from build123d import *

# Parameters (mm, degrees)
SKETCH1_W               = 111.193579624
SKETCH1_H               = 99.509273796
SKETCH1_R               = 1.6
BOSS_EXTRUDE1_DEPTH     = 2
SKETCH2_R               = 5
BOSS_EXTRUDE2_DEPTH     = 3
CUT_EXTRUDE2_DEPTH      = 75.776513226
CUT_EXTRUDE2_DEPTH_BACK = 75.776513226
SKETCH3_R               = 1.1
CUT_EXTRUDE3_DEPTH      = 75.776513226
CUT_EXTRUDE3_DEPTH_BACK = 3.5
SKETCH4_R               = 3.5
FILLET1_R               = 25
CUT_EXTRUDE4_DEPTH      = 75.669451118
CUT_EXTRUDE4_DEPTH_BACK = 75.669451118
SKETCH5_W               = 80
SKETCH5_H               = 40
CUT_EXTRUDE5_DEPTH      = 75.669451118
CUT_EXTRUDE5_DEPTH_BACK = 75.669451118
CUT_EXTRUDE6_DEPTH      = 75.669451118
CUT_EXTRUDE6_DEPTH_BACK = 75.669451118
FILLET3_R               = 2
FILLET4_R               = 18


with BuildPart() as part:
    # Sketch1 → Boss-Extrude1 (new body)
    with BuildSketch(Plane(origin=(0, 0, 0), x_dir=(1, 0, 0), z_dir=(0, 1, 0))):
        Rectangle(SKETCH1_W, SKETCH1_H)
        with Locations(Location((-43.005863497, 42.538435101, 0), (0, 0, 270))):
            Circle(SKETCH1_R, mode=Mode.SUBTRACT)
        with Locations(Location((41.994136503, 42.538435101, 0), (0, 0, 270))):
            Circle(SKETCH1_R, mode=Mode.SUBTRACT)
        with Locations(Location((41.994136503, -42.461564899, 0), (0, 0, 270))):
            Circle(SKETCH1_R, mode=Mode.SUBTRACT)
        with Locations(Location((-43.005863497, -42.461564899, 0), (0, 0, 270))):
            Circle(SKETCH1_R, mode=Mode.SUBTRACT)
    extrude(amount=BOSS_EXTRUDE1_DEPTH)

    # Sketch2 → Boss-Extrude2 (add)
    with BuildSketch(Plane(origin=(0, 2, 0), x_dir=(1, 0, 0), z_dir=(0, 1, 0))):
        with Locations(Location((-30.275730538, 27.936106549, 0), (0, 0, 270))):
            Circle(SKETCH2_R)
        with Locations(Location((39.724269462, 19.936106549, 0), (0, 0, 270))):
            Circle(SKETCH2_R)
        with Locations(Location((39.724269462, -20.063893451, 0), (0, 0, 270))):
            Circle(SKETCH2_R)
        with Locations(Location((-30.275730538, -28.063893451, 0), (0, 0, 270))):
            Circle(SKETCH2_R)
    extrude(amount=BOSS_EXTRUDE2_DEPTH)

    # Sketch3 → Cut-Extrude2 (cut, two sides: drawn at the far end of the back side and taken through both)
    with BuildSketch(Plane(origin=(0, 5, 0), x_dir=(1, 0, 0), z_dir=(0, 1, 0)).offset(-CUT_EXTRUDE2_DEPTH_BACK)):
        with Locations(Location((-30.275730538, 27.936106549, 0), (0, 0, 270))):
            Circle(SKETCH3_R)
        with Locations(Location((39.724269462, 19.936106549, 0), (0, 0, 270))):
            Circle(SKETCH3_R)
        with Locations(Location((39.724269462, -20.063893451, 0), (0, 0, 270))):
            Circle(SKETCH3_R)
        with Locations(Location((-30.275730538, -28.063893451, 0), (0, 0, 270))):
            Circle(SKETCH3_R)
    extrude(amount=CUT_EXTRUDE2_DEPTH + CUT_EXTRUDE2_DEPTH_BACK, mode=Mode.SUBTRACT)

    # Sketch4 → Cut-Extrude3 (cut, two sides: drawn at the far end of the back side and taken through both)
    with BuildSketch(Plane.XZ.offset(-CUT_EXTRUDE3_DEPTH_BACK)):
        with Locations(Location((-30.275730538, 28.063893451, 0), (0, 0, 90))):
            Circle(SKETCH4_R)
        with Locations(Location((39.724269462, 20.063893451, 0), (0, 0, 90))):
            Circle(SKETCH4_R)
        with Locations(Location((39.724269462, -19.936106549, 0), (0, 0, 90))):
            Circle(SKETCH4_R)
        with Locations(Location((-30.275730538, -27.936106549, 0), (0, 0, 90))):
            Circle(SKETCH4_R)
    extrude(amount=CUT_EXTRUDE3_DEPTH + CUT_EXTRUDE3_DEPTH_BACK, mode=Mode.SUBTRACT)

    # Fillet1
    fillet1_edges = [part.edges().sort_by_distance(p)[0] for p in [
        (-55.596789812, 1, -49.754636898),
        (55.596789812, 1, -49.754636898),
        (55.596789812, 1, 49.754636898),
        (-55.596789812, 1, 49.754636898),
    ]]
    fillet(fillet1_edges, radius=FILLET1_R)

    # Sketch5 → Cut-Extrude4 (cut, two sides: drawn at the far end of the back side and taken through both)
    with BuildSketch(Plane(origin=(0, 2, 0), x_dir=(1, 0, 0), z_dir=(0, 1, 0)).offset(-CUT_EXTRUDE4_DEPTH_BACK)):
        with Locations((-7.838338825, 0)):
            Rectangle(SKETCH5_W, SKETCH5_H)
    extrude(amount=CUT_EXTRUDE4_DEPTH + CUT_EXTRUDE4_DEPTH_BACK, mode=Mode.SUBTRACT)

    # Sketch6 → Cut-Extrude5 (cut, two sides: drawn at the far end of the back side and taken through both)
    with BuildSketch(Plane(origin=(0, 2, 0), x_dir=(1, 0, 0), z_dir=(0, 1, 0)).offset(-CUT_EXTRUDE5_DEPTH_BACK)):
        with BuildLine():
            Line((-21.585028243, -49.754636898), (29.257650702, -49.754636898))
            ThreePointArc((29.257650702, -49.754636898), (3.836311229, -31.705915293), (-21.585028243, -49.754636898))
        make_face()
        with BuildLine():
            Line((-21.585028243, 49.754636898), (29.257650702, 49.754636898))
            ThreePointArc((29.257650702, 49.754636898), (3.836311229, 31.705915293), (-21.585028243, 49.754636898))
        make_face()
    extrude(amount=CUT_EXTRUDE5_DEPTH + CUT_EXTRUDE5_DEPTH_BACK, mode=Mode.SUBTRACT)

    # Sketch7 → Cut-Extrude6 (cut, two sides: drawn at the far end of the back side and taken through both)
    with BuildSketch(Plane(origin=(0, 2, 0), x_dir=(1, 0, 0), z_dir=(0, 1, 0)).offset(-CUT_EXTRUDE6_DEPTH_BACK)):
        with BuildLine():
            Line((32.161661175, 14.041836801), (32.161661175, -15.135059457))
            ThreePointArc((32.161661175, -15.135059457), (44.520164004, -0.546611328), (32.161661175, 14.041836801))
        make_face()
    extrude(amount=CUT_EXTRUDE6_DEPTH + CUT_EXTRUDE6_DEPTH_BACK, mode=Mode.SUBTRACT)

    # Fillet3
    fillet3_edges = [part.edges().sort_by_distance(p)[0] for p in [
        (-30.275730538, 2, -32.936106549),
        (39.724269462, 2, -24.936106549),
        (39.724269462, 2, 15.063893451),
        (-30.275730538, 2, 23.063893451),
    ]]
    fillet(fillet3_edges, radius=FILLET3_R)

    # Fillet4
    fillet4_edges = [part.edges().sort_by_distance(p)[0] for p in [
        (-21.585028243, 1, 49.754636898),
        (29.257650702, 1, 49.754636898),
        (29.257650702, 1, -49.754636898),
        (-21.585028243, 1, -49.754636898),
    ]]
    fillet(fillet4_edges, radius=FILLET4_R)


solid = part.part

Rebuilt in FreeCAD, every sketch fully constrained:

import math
import FreeCAD as App
import Part
import Sketcher
from FreeCAD import Vector
Q = App.Units.Quantity


def edges_at(feature, points):
    """Names of the edges that pass closest to the given points."""
    edges = feature.Shape.Edges
    near = lambda p: min(range(len(edges)), key=lambda i: edges[i].distToShape(Part.Vertex(*p))[0])
    return sorted({f"Edge{near(p) + 1}" for p in points})

doc = App.newDocument("Part")
body = doc.addObject("PartDesign::Body", "Body")

# Sketch on XZ plane
sketch1 = body.newObject("Sketcher::SketchObject", "Sketch")
sketch1.AttachmentSupport = (doc.getObject("XZ_Plane"), [""])
sketch1.MapMode = "FlatFace"
sketch1.addGeometry([
    Part.LineSegment(Vector(-55.59679, -49.754637, 0), Vector(-55.59679, 49.754637, 0)),  # 0
    Part.LineSegment(Vector(-55.59679, 49.754637, 0), Vector(55.59679, 49.754637, 0)),  # 1
    Part.LineSegment(Vector(55.59679, 49.754637, 0), Vector(55.59679, -49.754637, 0)),  # 2
    Part.LineSegment(Vector(55.59679, -49.754637, 0), Vector(-55.59679, -49.754637, 0)),  # 3
    Part.Circle(Vector(-43.005863, 42.461565, 0), Vector(0, 0, 1), 1.6),  # 4
    Part.Circle(Vector(41.994137, 42.461565, 0), Vector(0, 0, 1), 1.6),  # 5
    Part.Circle(Vector(-43.005863, -42.538435, 0), Vector(0, 0, 1), 1.6),  # 6
    Part.Circle(Vector(41.994137, -42.538435, 0), Vector(0, 0, 1), 1.6),  # 7
], False)
sketch1.addConstraint([
    Sketcher.Constraint("Coincident", 0, 2, 1, 1),
    Sketcher.Constraint("Coincident", 1, 2, 2, 1),
    Sketcher.Constraint("Coincident", 2, 2, 3, 1),
    Sketcher.Constraint("Coincident", 3, 2, 0, 1),
    Sketcher.Constraint("Vertical", 0),
    Sketcher.Constraint("Horizontal", 1),
    Sketcher.Constraint("Vertical", 2),
    Sketcher.Constraint("Horizontal", 3),
    Sketcher.Constraint("Equal", 4, 5),
    Sketcher.Constraint("Equal", 5, 6),
    Sketcher.Constraint("Equal", 6, 7),
    Sketcher.Constraint("Symmetric", 0, 2, 2, 2, -1, 1),
    Sketcher.Constraint("Horizontal", 4, 3, 5, 3),
    Sketcher.Constraint("Horizontal", 6, 3, 7, 3),
    Sketcher.Constraint("Vertical", 4, 3, 6, 3),
    Sketcher.Constraint("Vertical", 5, 3, 7, 3),
    Sketcher.Constraint("Diameter", 4, Q("3.2 mm")),
    Sketcher.Constraint("DistanceX", 4, 3, 5, 3, Q("85 mm")),
    Sketcher.Constraint("DistanceY", 6, 3, 4, 3, Q("85 mm")),
    Sketcher.Constraint("DistanceX", 1, 1, 1, 2, Q("111.19358 mm")),
    Sketcher.Constraint("DistanceY", 2, 2, 7, 3, Q("7.216202 mm")),
    Sketcher.Constraint("DistanceY", 0, 1, 0, 2, Q("99.509274 mm")),
    Sketcher.Constraint("DistanceX", 4, 3, -1, 1, Q("43.005863 mm")),
])
pad1 = body.newObject("PartDesign::Pad", "Pad")
pad1.Profile = sketch1
pad1.Length = 2
pad1.Reversed = True

# Sketch on XZ plane
sketch2 = body.newObject("Sketcher::SketchObject", "Sketch001")
sketch2.AttachmentSupport = (doc.getObject("XZ_Plane"), [""])
sketch2.MapMode = "FlatFace"
sketch2.AttachmentOffset = App.Placement(Vector(0, 0, -2), App.Rotation())
sketch2.addGeometry([
    Part.Circle(Vector(-30.275731, -27.936107, 0), Vector(0, 0, 1), 5),
    Part.Circle(Vector(39.724269, -19.936107, 0), Vector(0, 0, 1), 5),
    Part.Circle(Vector(39.724269, 20.063893, 0), Vector(0, 0, 1), 5),
    Part.Circle(Vector(-30.275731, 28.063893, 0), Vector(0, 0, 1), 5),
], False)
sketch2.addConstraint([
    Sketcher.Constraint("Equal", 0, 1),
    Sketcher.Constraint("Equal", 1, 2),
    Sketcher.Constraint("Equal", 2, 3),
    Sketcher.Constraint("Vertical", 1, 3, 2, 3),
    Sketcher.Constraint("Vertical", 0, 3, 3, 3),
    Sketcher.Constraint("Diameter", 0, Q("10 mm")),
    Sketcher.Constraint("DistanceX", 0, 3, 1, 3, Q("70 mm")),
    Sketcher.Constraint("DistanceY", 0, 3, 1, 3, Q("8 mm")),
    Sketcher.Constraint("DistanceY", 1, 3, 2, 3, Q("40 mm")),
    Sketcher.Constraint("DistanceY", 0, 3, 3, 3, Q("56 mm")),
    Sketcher.Constraint("DistanceX", 0, 3, -1, 1, Q("30.275731 mm")),
    Sketcher.Constraint("DistanceY", 0, 3, -1, 1, Q("27.936107 mm")),
])
pad2 = body.newObject("PartDesign::Pad", "Pad001")
pad2.Profile = sketch2
pad2.Length = 3
pad2.Reversed = True

# Sketch on XZ plane
sketch3 = body.newObject("Sketcher::SketchObject", "Sketch002")
sketch3.AttachmentSupport = (doc.getObject("XZ_Plane"), [""])
sketch3.MapMode = "FlatFace"
sketch3.AttachmentOffset = App.Placement(Vector(0, 0, -5), App.Rotation())
sketch3.addGeometry([
    Part.Circle(Vector(-30.275731, -27.936107, 0), Vector(0, 0, 1), 1.1),
    Part.Circle(Vector(39.724269, -19.936107, 0), Vector(0, 0, 1), 1.1),
    Part.Circle(Vector(39.724269, 20.063893, 0), Vector(0, 0, 1), 1.1),
    Part.Circle(Vector(-30.275731, 28.063893, 0), Vector(0, 0, 1), 1.1),
], False)
sketch3.addConstraint([
    Sketcher.Constraint("Equal", 0, 1),
    Sketcher.Constraint("Equal", 1, 2),
    Sketcher.Constraint("Equal", 2, 3),
    Sketcher.Constraint("Vertical", 1, 3, 2, 3),
    Sketcher.Constraint("Vertical", 0, 3, 3, 3),
    Sketcher.Constraint("Diameter", 0, Q("2.2 mm")),
    Sketcher.Constraint("DistanceX", 0, 3, 1, 3, Q("70 mm")),
    Sketcher.Constraint("DistanceY", 0, 3, 1, 3, Q("8 mm")),
    Sketcher.Constraint("DistanceY", 1, 3, 2, 3, Q("40 mm")),
    Sketcher.Constraint("DistanceY", 0, 3, 3, 3, Q("56 mm")),
    Sketcher.Constraint("DistanceX", 0, 3, -1, 1, Q("30.275731 mm")),
    Sketcher.Constraint("DistanceY", 0, 3, -1, 1, Q("27.936107 mm")),
])
pocket1 = body.newObject("PartDesign::Pocket", "Pocket")
pocket1.Profile = sketch3
pocket1.Type = "ThroughAll"
pocket1.Midplane = True

# Sketch on XZ plane
sketch4 = body.newObject("Sketcher::SketchObject", "Sketch003")
sketch4.AttachmentSupport = (doc.getObject("XZ_Plane"), [""])
sketch4.MapMode = "FlatFace"
sketch4.addGeometry([
    Part.Circle(Vector(-30.275731, 28.063893, 0), Vector(0, 0, 1), 3.5),
    Part.Circle(Vector(39.724269, 20.063893, 0), Vector(0, 0, 1), 3.5),
    Part.Circle(Vector(39.724269, -19.936107, 0), Vector(0, 0, 1), 3.5),
    Part.Circle(Vector(-30.275731, -27.936107, 0), Vector(0, 0, 1), 3.5),
], False)
sketch4.addConstraint([
    Sketcher.Constraint("Equal", 0, 1),
    Sketcher.Constraint("Equal", 1, 2),
    Sketcher.Constraint("Equal", 2, 3),
    Sketcher.Constraint("Vertical", 1, 3, 2, 3),
    Sketcher.Constraint("Vertical", 0, 3, 3, 3),
    Sketcher.Constraint("Diameter", 0, Q("7 mm")),
    Sketcher.Constraint("DistanceX", 0, 3, 1, 3, Q("70 mm")),
    Sketcher.Constraint("DistanceY", 1, 3, 0, 3, Q("8 mm")),
    Sketcher.Constraint("DistanceY", 2, 3, 1, 3, Q("40 mm")),
    Sketcher.Constraint("DistanceY", 3, 3, 0, 3, Q("56 mm")),
    Sketcher.Constraint("DistanceX", 0, 3, -1, 1, Q("30.275731 mm")),
    Sketcher.Constraint("DistanceY", -1, 1, 0, 3, Q("28.063893 mm")),
])
pocket2 = body.newObject("PartDesign::Pocket", "Pocket001")
pocket2.Profile = sketch4
pocket2.Type = "TwoLengths"
pocket2.Length = 75.776513
pocket2.Length2 = 3.5
pocket2.Reversed = True
doc.recompute()

fillet = body.newObject("PartDesign::Fillet", "Fillet")
fillet.Base = (pocket2, edges_at(pocket2, [
    (-55.597, 1, -49.755),
    (55.597, 1, -49.755),
    (55.597, 1, 49.755),
    (-55.597, 1, 49.755),
]))
fillet.Radius = 25

# Sketch on XZ plane
sketch5 = body.newObject("Sketcher::SketchObject", "Sketch004")
sketch5.AttachmentSupport = (doc.getObject("XZ_Plane"), [""])
sketch5.MapMode = "FlatFace"
sketch5.AttachmentOffset = App.Placement(Vector(0, 0, -2), App.Rotation())
sketch5.addGeometry([
    Part.LineSegment(Vector(-47.838339, -20, 0), Vector(-47.838339, 20, 0)),
    Part.LineSegment(Vector(-47.838339, 20, 0), Vector(32.161661, 20, 0)),
    Part.LineSegment(Vector(32.161661, 20, 0), Vector(32.161661, -20, 0)),
    Part.LineSegment(Vector(32.161661, -20, 0), Vector(-47.838339, -20, 0)),
], False)
sketch5.addConstraint([
    Sketcher.Constraint("Coincident", 0, 2, 1, 1),
    Sketcher.Constraint("Coincident", 1, 2, 2, 1),
    Sketcher.Constraint("Coincident", 2, 2, 3, 1),
    Sketcher.Constraint("Coincident", 3, 2, 0, 1),
    Sketcher.Constraint("Vertical", 0),
    Sketcher.Constraint("Horizontal", 1),
    Sketcher.Constraint("Vertical", 2),
    Sketcher.Constraint("Horizontal", 3),
    Sketcher.Constraint("DistanceX", 1, 1, 1, 2, Q("80 mm")),
    Sketcher.Constraint("DistanceY", 0, 1, 0, 2, Q("40 mm")),
    Sketcher.Constraint("DistanceY", -1, 1, 0, 2, Q("20 mm")),
    Sketcher.Constraint("DistanceX", 0, 2, -1, 1, Q("47.838339 mm")),
])
pocket3 = body.newObject("PartDesign::Pocket", "Pocket002")
pocket3.Profile = sketch5
pocket3.Type = "ThroughAll"
pocket3.Midplane = True

# Sketch on XZ plane
sketch6 = body.newObject("Sketcher::SketchObject", "Sketch005")
sketch6.AttachmentSupport = (doc.getObject("XZ_Plane"), [""])
sketch6.MapMode = "FlatFace"
sketch6.AttachmentOffset = App.Placement(Vector(0, 0, -2), App.Rotation())
sketch6.addGeometry([
    Part.LineSegment(Vector(-21.585028, 49.754637, 0), Vector(29.257651, 49.754637, 0)),
    Part.ArcOfCircle(Part.Circle(Vector(3.836311, 58.633054, 0), Vector(0, 0, 1), 26.927138), math.radians(-160.748217), math.radians(-19.251783)),
    Part.LineSegment(Vector(29.257651, -49.754637, 0), Vector(-21.585028, -49.754637, 0)),
    Part.ArcOfCircle(Part.Circle(Vector(3.836311, -58.633054, 0), Vector(0, 0, 1), 26.927138), math.radians(19.251783), math.radians(160.748217)),
], False)
sketch6.addConstraint([
    Sketcher.Constraint("Coincident", 0, 1, 1, 1),
    Sketcher.Constraint("Coincident", 1, 2, 0, 2),
    Sketcher.Constraint("Coincident", 2, 1, 3, 1),
    Sketcher.Constraint("Coincident", 3, 2, 2, 2),
    Sketcher.Constraint("Horizontal", 0),
    Sketcher.Constraint("Horizontal", 2),
    Sketcher.Constraint("Equal", 1, 3),
    Sketcher.Constraint("Symmetric", 1, 3, 3, 3, -1),
    Sketcher.Constraint("Vertical", 1, 2, 2, 1),
    Sketcher.Constraint("Radius", 1, Q("26.927138 mm")),
    Sketcher.Constraint("DistanceX", 0, 1, 0, 2, Q("50.842679 mm")),
    Sketcher.Constraint("DistanceX", -1, 1, 1, 3, Q("3.836311 mm")),
    Sketcher.Constraint("DistanceY", 3, 3, 0, 1, Q("108.387691 mm")),
])
pocket4 = body.newObject("PartDesign::Pocket", "Pocket003")
pocket4.Profile = sketch6
pocket4.Type = "ThroughAll"
pocket4.Midplane = True

# Sketch on XZ plane
sketch7 = body.newObject("Sketcher::SketchObject", "Sketch006")
sketch7.AttachmentSupport = (doc.getObject("XZ_Plane"), [""])
sketch7.MapMode = "FlatFace"
sketch7.AttachmentOffset = App.Placement(Vector(0, 0, -2), App.Rotation())
sketch7.addGeometry([
    Part.LineSegment(Vector(32.161661, -14.041837, 0), Vector(32.161661, 15.135059, 0)),
    Part.ArcOfCircle(Part.Circle(Vector(29.730532, 0.546611, 0), Vector(0, 0, 1), 14.789632), math.radians(-80.538744), math.radians(80.538744)),
], False)
sketch7.addConstraint([
    Sketcher.Constraint("Coincident", 0, 1, 1, 1),
    Sketcher.Constraint("Coincident", 1, 2, 0, 2),
    Sketcher.Constraint("Vertical", 0),
    Sketcher.Constraint("Radius", 1, Q("14.789632 mm")),
    Sketcher.Constraint("DistanceY", 0, 1, 0, 2, Q("29.176896 mm")),
    Sketcher.Constraint("DistanceY", -1, 1, 1, 3, Q("0.546611 mm")),
    Sketcher.Constraint("DistanceX", -1, 1, 0, 1, Q("32.161661 mm")),
])
pocket5 = body.newObject("PartDesign::Pocket", "Pocket004")
pocket5.Profile = sketch7
pocket5.Type = "ThroughAll"
pocket5.Midplane = True
doc.recompute()

fillet2 = body.newObject("PartDesign::Fillet", "Fillet001")
fillet2.Base = (pocket5, edges_at(pocket5, [
    (-30.276, 2, -32.936),
    (39.724, 2, -24.936),
    (39.724, 2, 15.064),
    (-30.276, 2, 23.064),
]))
fillet2.Radius = 2
doc.recompute()

fillet3 = body.newObject("PartDesign::Fillet", "Fillet002")
fillet3.Base = (fillet2, edges_at(fillet2, [
    (-21.585, 1, 49.755),
    (29.258, 1, 49.755),
    (29.258, 1, -49.755),
    (-21.585, 1, -49.755),
]))
fillet3.Radius = 18

doc.recompute()
